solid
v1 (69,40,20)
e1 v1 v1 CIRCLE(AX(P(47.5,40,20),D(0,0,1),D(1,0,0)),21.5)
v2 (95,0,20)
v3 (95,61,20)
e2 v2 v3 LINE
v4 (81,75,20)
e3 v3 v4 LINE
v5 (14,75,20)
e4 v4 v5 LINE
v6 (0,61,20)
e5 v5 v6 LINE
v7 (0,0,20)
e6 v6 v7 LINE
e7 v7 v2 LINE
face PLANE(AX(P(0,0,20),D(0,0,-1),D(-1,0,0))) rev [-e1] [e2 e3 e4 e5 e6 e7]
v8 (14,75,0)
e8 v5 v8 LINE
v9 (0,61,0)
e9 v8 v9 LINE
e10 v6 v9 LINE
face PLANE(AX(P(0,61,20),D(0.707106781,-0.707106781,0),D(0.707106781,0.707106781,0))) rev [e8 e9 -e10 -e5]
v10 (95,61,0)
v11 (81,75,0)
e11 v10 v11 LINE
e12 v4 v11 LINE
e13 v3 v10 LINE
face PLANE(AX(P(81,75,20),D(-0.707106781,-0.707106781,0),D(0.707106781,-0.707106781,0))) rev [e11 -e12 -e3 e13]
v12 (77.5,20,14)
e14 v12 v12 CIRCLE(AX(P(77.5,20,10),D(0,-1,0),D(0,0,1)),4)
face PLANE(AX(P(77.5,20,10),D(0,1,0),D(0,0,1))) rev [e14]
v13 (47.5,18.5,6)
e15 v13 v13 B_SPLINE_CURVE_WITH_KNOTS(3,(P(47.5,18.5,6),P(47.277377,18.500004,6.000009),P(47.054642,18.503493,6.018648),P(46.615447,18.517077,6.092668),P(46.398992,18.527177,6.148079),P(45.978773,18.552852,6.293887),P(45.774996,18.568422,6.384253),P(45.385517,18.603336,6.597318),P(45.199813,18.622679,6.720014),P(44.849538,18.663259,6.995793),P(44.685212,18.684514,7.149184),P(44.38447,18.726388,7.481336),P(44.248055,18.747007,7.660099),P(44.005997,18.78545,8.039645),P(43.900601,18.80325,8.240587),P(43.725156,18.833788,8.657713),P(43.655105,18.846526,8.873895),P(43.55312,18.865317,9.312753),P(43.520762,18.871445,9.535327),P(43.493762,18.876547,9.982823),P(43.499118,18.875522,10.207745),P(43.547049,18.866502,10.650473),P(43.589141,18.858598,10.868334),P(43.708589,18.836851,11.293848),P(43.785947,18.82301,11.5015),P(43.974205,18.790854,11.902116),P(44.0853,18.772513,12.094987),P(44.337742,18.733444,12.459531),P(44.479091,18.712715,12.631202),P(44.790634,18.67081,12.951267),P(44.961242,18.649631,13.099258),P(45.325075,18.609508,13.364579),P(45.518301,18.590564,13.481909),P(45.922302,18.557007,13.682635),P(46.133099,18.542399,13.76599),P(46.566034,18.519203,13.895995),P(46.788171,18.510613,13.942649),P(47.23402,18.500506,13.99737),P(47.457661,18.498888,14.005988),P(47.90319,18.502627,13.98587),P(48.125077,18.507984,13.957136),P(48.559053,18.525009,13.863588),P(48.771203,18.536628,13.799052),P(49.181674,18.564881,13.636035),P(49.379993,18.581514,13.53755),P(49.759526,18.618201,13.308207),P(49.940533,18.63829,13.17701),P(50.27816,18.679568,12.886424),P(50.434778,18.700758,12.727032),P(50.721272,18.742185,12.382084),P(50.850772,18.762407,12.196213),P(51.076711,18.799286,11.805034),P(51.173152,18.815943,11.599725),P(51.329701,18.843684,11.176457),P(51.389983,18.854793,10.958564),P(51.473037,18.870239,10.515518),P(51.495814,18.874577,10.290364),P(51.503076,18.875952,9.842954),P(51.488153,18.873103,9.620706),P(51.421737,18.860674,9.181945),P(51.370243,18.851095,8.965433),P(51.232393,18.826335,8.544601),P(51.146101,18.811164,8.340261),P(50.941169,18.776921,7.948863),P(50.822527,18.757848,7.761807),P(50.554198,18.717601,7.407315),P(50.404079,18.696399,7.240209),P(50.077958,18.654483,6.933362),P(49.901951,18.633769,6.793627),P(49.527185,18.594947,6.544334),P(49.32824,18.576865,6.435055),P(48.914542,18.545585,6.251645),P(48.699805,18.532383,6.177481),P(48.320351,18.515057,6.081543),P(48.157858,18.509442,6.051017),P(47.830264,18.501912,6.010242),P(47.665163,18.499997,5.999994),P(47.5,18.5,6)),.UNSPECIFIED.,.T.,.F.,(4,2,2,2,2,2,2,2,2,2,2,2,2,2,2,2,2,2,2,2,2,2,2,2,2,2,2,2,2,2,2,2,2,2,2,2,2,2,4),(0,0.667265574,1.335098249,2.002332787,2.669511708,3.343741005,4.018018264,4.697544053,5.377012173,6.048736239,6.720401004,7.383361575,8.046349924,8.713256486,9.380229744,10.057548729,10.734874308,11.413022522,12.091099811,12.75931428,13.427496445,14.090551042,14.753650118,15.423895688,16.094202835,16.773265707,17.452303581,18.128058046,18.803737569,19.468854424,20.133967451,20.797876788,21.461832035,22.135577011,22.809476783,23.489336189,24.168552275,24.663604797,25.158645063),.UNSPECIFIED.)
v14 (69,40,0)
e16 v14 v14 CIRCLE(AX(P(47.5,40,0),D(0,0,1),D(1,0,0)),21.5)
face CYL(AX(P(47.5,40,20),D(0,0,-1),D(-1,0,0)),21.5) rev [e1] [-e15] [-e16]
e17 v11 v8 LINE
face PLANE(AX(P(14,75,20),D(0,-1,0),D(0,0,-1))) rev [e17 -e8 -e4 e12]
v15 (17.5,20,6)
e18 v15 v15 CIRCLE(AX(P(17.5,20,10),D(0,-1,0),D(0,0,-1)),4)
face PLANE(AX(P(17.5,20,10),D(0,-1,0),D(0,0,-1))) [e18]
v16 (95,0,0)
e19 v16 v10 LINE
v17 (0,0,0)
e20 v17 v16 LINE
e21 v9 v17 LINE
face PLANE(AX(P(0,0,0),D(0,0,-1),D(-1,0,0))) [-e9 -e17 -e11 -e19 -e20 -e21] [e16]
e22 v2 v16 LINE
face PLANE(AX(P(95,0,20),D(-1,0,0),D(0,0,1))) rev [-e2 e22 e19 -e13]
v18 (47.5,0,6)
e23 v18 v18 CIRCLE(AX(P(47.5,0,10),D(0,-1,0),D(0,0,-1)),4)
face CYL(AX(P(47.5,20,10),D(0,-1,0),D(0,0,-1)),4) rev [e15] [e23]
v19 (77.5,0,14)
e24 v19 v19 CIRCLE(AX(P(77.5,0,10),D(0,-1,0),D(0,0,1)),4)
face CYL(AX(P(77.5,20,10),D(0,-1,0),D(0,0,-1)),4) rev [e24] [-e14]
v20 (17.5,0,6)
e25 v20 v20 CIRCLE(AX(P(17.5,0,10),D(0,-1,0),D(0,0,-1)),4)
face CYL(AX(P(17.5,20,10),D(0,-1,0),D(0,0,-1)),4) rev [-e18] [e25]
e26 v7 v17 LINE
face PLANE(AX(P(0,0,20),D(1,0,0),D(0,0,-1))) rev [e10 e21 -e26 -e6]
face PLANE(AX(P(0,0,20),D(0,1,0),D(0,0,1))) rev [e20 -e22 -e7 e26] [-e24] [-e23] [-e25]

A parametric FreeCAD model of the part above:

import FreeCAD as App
import Part
import Sketcher

V = App.Vector
Q = App.Units.Quantity

doc = App.newDocument("Part")
body = doc.addObject("PartDesign::Body", "Body")

sketch1 = doc.addObject("Sketcher::SketchObject", "Sketch")
body.addObject(sketch1)
sketch1.AttachmentSupport = (doc.XY_Plane, [""])
sketch1.MapMode = "FlatFace"
sketch1.addGeometry([
    Part.LineSegment(V(0, 0, 0), V(95, 0, 0)),
    Part.LineSegment(V(95, 0, 0), V(95, 61, 0)),
    Part.LineSegment(V(95, 61, 0), V(81, 75, 0)),
    Part.LineSegment(V(81, 75, 0), V(14, 75, 0)),
    Part.LineSegment(V(14, 75, 0), V(0, 61, 0)),
    Part.LineSegment(V(0, 61, 0), V(0, 0, 0)),
    Part.Circle(V(48, 40, 0), V(0, 0, 1), 22),
], False)
sketch1.addConstraint([
    Sketcher.Constraint("Coincident", 0, 2, 1, 1),
    Sketcher.Constraint("Coincident", 1, 2, 2, 1),
    Sketcher.Constraint("Coincident", 2, 2, 3, 1),
    Sketcher.Constraint("Coincident", 3, 2, 4, 1),
    Sketcher.Constraint("Coincident", 4, 2, 5, 1),
    Sketcher.Constraint("Coincident", 5, 2, 0, 1),
    Sketcher.Constraint("Horizontal", 0),
    Sketcher.Constraint("Vertical", 1),
    Sketcher.Constraint("Horizontal", 3),
    Sketcher.Constraint("Vertical", 5),
    Sketcher.Constraint("Coincident", 5, 2, -1, 1),
    Sketcher.Constraint("Perpendicular", 2, 4),
    Sketcher.Constraint("Horizontal", 1, 2, 4, 2),
    Sketcher.Constraint("Equal", 2, 4),
    Sketcher.Constraint("Diameter", 6, Q("43 mm")),
    Sketcher.Constraint("DistanceX", 0, 1, 0, 2, Q("95 mm")),
    Sketcher.Constraint("DistanceX", 3, 2, 3, 1, Q("67 mm")),
    Sketcher.Constraint("DistanceY", 1, 1, 1, 2, Q("61 mm")),
    Sketcher.Constraint("DistanceY", -1, 1, 6, 3, Q("40 mm")),
    Sketcher.Constraint("DistanceX", -1, 1, 6, 3, Q("47.5 mm")),
])
pad1 = doc.addObject("PartDesign::Pad", "Pad")
body.addObject(pad1)
pad1.Profile = sketch1
pad1.Length = 20

sketch2 = doc.addObject("Sketcher::SketchObject", "Sketch001")
body.addObject(sketch2)
sketch2.AttachmentSupport = (doc.XZ_Plane, [""])
sketch2.MapMode = "FlatFace"
sketch2.addGeometry([
    Part.Circle(V(47.5, 10, 0), V(0, 0, 1), 4),
    Part.Circle(V(17.5, 10, 0), V(0, 0, 1), 4),
    Part.Circle(V(77.5, 10, 0), V(0, 0, 1), 4),
], False)
sketch2.addConstraint([
    Sketcher.Constraint("Equal", 0, 1),
    Sketcher.Constraint("Equal", 1, 2),
    Sketcher.Constraint("Horizontal", 0, 3, 1, 3),
    Sketcher.Constraint("Horizontal", 1, 3, 2, 3),
    Sketcher.Constraint("Diameter", 0, Q("8 mm")),
    Sketcher.Constraint("DistanceY", -1, 1, 0, 3, Q("10 mm")),
    Sketcher.Constraint("DistanceX", 1, 3, 0, 3, Q("30 mm")),
    Sketcher.Constraint("DistanceX", 0, 3, 2, 3, Q("30 mm")),
    Sketcher.Constraint("DistanceX", -1, 1, 0, 3, Q("47.5 mm")),
])
pocket1 = doc.addObject("PartDesign::Pocket", "Pocket")
body.addObject(pocket1)
pocket1.Profile = sketch2
pocket1.Length = 20

doc.recompute()
